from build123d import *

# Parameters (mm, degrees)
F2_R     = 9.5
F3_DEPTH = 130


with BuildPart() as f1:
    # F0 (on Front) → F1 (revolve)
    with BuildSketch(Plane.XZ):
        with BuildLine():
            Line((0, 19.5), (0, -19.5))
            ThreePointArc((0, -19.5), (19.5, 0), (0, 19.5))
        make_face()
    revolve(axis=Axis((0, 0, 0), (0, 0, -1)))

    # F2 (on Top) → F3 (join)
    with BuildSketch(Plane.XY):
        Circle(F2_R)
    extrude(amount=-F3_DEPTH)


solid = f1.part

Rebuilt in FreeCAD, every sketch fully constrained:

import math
import FreeCAD as App
import Part
import Sketcher
from FreeCAD import Vector
Q = App.Units.Quantity

doc = App.newDocument("Part")
params = doc.addObject("Spreadsheet::Sheet", "Params")
for row, (alias, value) in enumerate([
    ("sketch1_radius", "19.5 mm"),
    ("revolution_angle", "360 deg"),
    ("sketch2_diameter", "19 mm"),
    ("pad1_length", "130 mm"),
], start=1):
    params.set(f"A{row}", alias)
    params.set(f"B{row}", "=" + value)
    params.setAlias(f"B{row}", alias)

body = doc.addObject("PartDesign::Body", "Body")

sketch1 = doc.addObject("Sketcher::SketchObject", "Sketch")
body.addObject(sketch1)
sketch1.AttachmentSupport = (doc.XZ_Plane, [""])
sketch1.MapMode = "FlatFace"
sketch1.addGeometry([
    Part.LineSegment(Vector(0, 20, 0), Vector(0, -20, 0)),
    Part.ArcOfCircle(Part.Circle(Vector(0, 0, 0), Vector(0, 0, 1), 20), math.radians(-90), math.radians(90)),
], False)
sketch1.addConstraint([
    Sketcher.Constraint("Coincident", 0, 1, 1, 2),
    Sketcher.Constraint("Coincident", 1, 1, 0, 2),
    Sketcher.Constraint("Vertical", 0),
    Sketcher.Constraint("Coincident", 1, 3, -1, 1),
    Sketcher.Constraint("PointOnObject", 0, 1, -2),
    Sketcher.Constraint("Radius", 1, Q("19.5 mm")),
])
sketch1.setExpression("Constraints[5]", "Params.sketch1_radius")
revolution = doc.addObject("PartDesign::Revolution", "Revolution")
body.addObject(revolution)
revolution.Profile = sketch1
revolution.ReferenceAxis = (sketch1, ["V_Axis"])
revolution.setExpression("Angle", "Params.revolution_angle")

sketch2 = doc.addObject("Sketcher::SketchObject", "Sketch001")
body.addObject(sketch2)
sketch2.AttachmentSupport = (doc.XY_Plane, [""])
sketch2.MapMode = "FlatFace"
sketch2.addGeometry(Part.Circle(Vector(0, 0, 0), Vector(0, 0, 1), 10), False)
sketch2.addConstraint([
    Sketcher.Constraint("Coincident", 0, 3, -1, 1),
    Sketcher.Constraint("Diameter", 0, Q("19 mm")),
])
sketch2.setExpression("Constraints[1]", "Params.sketch2_diameter")
pad1 = doc.addObject("PartDesign::Pad", "Pad")
body.addObject(pad1)
pad1.Profile = sketch2
pad1.setExpression("Length", "Params.pad1_length")
pad1.Reversed = True

doc.recompute()
